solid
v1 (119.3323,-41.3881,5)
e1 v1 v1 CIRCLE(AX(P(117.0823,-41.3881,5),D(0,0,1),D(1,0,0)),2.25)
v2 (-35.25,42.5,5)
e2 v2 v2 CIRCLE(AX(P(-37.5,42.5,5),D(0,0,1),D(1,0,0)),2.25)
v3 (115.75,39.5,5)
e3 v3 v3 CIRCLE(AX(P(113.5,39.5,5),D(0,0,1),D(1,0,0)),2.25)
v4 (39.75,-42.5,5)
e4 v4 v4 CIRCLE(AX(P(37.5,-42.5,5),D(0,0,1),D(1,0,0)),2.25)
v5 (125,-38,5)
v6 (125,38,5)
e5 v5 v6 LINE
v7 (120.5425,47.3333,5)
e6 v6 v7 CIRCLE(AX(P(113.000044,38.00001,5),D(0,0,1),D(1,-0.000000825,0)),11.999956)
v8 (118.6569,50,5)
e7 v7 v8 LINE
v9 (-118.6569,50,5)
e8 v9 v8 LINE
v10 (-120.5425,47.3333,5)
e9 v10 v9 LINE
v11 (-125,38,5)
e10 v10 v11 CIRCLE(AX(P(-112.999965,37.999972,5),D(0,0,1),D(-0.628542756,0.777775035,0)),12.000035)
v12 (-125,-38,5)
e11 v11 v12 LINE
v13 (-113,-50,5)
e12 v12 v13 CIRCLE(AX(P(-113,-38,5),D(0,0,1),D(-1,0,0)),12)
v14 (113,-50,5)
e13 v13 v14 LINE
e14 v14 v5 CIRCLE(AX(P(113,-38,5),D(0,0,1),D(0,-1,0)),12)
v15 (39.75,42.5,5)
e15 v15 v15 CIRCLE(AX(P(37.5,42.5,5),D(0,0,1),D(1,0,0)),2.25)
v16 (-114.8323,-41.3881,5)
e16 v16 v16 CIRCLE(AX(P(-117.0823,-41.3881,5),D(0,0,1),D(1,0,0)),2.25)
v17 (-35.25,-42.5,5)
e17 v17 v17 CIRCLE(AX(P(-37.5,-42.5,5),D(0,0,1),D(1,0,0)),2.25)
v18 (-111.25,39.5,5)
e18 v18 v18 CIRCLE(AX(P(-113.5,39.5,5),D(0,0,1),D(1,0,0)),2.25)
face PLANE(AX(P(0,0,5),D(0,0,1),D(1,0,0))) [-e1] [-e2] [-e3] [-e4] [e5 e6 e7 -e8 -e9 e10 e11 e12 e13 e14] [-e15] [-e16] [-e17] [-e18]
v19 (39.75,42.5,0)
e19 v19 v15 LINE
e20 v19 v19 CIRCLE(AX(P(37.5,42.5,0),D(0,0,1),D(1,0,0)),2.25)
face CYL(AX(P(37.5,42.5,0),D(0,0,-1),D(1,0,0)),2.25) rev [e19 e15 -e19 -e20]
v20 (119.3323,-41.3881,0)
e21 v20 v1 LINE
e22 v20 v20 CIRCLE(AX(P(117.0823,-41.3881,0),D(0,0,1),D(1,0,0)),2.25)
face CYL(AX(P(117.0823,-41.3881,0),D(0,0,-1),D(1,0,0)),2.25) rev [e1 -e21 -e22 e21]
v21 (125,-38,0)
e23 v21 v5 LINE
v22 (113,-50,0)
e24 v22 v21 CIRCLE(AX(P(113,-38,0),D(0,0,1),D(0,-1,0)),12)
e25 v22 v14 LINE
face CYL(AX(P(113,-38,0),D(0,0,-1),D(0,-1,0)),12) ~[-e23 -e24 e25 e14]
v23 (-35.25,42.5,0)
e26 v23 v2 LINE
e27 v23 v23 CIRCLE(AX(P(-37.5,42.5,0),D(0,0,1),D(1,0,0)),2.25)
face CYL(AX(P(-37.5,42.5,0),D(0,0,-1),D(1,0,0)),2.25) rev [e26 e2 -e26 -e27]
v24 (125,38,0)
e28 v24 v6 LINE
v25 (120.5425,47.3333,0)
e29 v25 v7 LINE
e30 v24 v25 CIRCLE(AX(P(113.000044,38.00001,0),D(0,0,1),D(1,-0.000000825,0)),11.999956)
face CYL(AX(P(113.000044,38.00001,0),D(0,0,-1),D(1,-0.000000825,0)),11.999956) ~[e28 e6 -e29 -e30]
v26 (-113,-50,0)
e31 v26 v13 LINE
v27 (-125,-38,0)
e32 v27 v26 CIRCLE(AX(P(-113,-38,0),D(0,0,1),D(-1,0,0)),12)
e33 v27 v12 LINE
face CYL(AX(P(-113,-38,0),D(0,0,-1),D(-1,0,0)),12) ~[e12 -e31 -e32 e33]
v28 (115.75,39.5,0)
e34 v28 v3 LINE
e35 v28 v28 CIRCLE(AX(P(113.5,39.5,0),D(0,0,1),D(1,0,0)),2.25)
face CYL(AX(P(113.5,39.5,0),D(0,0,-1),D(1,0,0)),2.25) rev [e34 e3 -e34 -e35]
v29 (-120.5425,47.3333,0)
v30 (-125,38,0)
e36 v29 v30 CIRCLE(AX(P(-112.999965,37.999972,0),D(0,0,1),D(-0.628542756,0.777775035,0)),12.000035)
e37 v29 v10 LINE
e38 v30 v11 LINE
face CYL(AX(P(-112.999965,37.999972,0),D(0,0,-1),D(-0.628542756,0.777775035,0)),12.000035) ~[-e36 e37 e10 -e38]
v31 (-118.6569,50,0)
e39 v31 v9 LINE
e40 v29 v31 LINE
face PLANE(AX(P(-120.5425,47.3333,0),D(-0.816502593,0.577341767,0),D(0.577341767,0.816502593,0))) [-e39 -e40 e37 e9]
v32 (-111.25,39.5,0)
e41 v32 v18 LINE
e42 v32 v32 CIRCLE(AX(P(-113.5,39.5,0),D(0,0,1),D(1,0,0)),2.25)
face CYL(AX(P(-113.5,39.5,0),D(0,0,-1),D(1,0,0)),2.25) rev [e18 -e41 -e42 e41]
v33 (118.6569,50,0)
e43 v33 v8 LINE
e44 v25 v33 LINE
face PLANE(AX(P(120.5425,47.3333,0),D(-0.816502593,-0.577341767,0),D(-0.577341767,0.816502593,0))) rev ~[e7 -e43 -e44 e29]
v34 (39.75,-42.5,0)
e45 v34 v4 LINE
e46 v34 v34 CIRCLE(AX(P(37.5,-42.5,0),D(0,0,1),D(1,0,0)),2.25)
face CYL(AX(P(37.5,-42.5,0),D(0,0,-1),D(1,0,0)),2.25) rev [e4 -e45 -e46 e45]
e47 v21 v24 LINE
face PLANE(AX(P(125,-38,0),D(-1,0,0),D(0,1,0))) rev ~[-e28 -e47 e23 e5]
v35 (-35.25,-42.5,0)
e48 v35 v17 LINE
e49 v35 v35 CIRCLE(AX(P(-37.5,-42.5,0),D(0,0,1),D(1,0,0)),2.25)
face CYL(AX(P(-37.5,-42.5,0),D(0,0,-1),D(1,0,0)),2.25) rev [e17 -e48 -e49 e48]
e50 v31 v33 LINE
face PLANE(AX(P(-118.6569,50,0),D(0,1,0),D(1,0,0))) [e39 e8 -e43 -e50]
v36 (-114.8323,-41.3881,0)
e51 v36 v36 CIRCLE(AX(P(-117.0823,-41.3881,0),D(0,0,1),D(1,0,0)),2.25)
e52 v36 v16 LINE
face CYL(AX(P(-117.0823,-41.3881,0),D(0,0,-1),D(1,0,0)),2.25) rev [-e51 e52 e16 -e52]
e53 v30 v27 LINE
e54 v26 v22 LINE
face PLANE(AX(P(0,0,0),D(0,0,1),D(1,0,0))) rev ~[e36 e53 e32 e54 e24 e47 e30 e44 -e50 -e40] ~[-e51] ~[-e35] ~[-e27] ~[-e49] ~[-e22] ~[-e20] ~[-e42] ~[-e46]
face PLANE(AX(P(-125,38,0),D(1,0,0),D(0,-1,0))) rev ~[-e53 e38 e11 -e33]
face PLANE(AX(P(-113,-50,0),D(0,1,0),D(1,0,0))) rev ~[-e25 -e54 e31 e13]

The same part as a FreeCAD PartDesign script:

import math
import FreeCAD as App
import Part
import Sketcher

doc = App.newDocument("Part")
body = doc.addObject("PartDesign::Body", "Body")

# Sketch on XY plane
sketch1 = body.newObject("Sketcher::SketchObject", "Sketch")
sketch1.AttachmentSupport = (doc.getObject("XY_Plane"), [""])
sketch1.MapMode = "FlatFace"
sketch1.addGeometry([
    Part.LineSegment(App.Vector(-125, 38, 0), App.Vector(-125, -38, 0)),  # 0
    Part.ArcOfCircle(Part.Circle(App.Vector(-113, -38, 0), App.Vector(0, 0, 1), 12), math.radians(180), math.radians(270)),  # 1
    Part.LineSegment(App.Vector(-113, -50, 0), App.Vector(113, -50, 0)),  # 2
    Part.ArcOfCircle(Part.Circle(App.Vector(113, -38, 0), App.Vector(0, 0, 1), 12), math.radians(-90), math.radians(0)),  # 3
    Part.LineSegment(App.Vector(125, -38, 0), App.Vector(125, 38, 0)),  # 4
    Part.ArcOfCircle(Part.Circle(App.Vector(113, 38, 0), App.Vector(0, 0, 1), 12), math.radians(0), math.radians(51)),  # 5
    Part.LineSegment(App.Vector(120.5, 47.3, 0), App.Vector(118.7, 50, 0)),  # 6
    Part.LineSegment(App.Vector(118.7, 50, 0), App.Vector(-118.7, 50, 0)),  # 7
    Part.LineSegment(App.Vector(-118.7, 50, 0), App.Vector(-120.5, 47.3, 0)),  # 8
    Part.ArcOfCircle(Part.Circle(App.Vector(-113, 38, 0), App.Vector(0, 0, 1), 12), math.radians(129), math.radians(180)),  # 9
    Part.Circle(App.Vector(-117.1, -41.4, 0), App.Vector(0, 0, 1), 2.2),  # 10
    Part.Circle(App.Vector(-37.5, -42.5, 0), App.Vector(0, 0, 1), 2.2),  # 11
    Part.Circle(App.Vector(-113.5, 39.5, 0), App.Vector(0, 0, 1), 2.2),  # 12
    Part.Circle(App.Vector(-37.5, 42.5, 0), App.Vector(0, 0, 1), 2.2),  # 13
    Part.Circle(App.Vector(37.5, 42.5, 0), App.Vector(0, 0, 1), 2.2),  # 14
    Part.Circle(App.Vector(113.5, 39.5, 0), App.Vector(0, 0, 1), 2.2),  # 15
    Part.Circle(App.Vector(37.5, -42.5, 0), App.Vector(0, 0, 1), 2.2),  # 16
    Part.Circle(App.Vector(117.1, -41.4, 0), App.Vector(0, 0, 1), 2.2),  # 17
], False)
sketch1.addConstraint([
    Sketcher.Constraint("Tangent", 0, 2, 1, 1),
    Sketcher.Constraint("Tangent", 1, 2, 2, 1),
    Sketcher.Constraint("Tangent", 2, 2, 3, 1),
    Sketcher.Constraint("Tangent", 3, 2, 4, 1),
    Sketcher.Constraint("Tangent", 4, 2, 5, 1),
    Sketcher.Constraint("Coincident", 5, 2, 6, 1),
    Sketcher.Constraint("Coincident", 6, 2, 7, 1),
    Sketcher.Constraint("Coincident", 7, 2, 8, 1),
    Sketcher.Constraint("Coincident", 8, 2, 9, 1),
    Sketcher.Constraint("Tangent", 9, 2, 0, 1),
    Sketcher.Constraint("Vertical", 0),
    Sketcher.Constraint("Horizontal", 2),
    Sketcher.Constraint("Vertical", 4),
    Sketcher.Constraint("Horizontal", 7),
    Sketcher.Constraint("Equal", 1, 3),
    Sketcher.Constraint("Equal", 3, 5),
    Sketcher.Constraint("Equal", 5, 9),
    Sketcher.Constraint("Equal", 10, 11),
    Sketcher.Constraint("Equal", 11, 12),
    Sketcher.Constraint("Equal", 12, 13),
    Sketcher.Constraint("Equal", 13, 14),
    Sketcher.Constraint("Equal", 14, 15),
    Sketcher.Constraint("Equal", 15, 16),
    Sketcher.Constraint("Equal", 16, 17),
    Sketcher.Constraint("Symmetric", 1, 3, 5, 3, -1, 1),
    Sketcher.Constraint("Symmetric", 11, 3, 14, 3, -1, 1),
    Sketcher.Constraint("Symmetric", 13, 3, 16, 3, -1, 1),
    Sketcher.Constraint("Symmetric", 13, 3, 14, 3, -2),
    Sketcher.Constraint("Symmetric", 12, 3, 15, 3, -2),
    Sketcher.Constraint("Symmetric", 10, 3, 17, 3, -2),
    Sketcher.Constraint("Symmetric", 5, 2, 8, 2, -2),
    Sketcher.Constraint("Equal", 6, 8),
    Sketcher.Constraint("Radius", 1, 12.0),
    Sketcher.Constraint("Diameter", 10, 4.5),
    Sketcher.Constraint("DistanceX", 2, 1, 2, 2, 226.0),
    Sketcher.Constraint("DistanceY", 0, 2, 0, 1, 76.0),
    Sketcher.Constraint("DistanceY", -1, 1, 6, 2, 50.0),
    Sketcher.Constraint("DistanceX", 12, 3, 11, 3, 76.0),
    Sketcher.Constraint("DistanceY", 11, 3, 12, 3, 82.0),
    Sketcher.Constraint("DistanceY", 12, 3, 13, 3, 3.0),
    Sketcher.Constraint("DistanceX", 13, 3, 14, 3, 75.0),
    Sketcher.Constraint("Distance", 6, 3.266),
    Sketcher.Constraint("DistanceX", 7, 2, 7, 1, 237.3138),
    Sketcher.Constraint("DistanceY", 10, 3, -1, 1, 41.388),
    Sketcher.Constraint("DistanceX", 10, 3, -1, 1, 117.0823),
])
pad1 = body.newObject("PartDesign::Pad", "Pad")
pad1.Profile = sketch1
pad1.Length = 5

doc.recompute()
